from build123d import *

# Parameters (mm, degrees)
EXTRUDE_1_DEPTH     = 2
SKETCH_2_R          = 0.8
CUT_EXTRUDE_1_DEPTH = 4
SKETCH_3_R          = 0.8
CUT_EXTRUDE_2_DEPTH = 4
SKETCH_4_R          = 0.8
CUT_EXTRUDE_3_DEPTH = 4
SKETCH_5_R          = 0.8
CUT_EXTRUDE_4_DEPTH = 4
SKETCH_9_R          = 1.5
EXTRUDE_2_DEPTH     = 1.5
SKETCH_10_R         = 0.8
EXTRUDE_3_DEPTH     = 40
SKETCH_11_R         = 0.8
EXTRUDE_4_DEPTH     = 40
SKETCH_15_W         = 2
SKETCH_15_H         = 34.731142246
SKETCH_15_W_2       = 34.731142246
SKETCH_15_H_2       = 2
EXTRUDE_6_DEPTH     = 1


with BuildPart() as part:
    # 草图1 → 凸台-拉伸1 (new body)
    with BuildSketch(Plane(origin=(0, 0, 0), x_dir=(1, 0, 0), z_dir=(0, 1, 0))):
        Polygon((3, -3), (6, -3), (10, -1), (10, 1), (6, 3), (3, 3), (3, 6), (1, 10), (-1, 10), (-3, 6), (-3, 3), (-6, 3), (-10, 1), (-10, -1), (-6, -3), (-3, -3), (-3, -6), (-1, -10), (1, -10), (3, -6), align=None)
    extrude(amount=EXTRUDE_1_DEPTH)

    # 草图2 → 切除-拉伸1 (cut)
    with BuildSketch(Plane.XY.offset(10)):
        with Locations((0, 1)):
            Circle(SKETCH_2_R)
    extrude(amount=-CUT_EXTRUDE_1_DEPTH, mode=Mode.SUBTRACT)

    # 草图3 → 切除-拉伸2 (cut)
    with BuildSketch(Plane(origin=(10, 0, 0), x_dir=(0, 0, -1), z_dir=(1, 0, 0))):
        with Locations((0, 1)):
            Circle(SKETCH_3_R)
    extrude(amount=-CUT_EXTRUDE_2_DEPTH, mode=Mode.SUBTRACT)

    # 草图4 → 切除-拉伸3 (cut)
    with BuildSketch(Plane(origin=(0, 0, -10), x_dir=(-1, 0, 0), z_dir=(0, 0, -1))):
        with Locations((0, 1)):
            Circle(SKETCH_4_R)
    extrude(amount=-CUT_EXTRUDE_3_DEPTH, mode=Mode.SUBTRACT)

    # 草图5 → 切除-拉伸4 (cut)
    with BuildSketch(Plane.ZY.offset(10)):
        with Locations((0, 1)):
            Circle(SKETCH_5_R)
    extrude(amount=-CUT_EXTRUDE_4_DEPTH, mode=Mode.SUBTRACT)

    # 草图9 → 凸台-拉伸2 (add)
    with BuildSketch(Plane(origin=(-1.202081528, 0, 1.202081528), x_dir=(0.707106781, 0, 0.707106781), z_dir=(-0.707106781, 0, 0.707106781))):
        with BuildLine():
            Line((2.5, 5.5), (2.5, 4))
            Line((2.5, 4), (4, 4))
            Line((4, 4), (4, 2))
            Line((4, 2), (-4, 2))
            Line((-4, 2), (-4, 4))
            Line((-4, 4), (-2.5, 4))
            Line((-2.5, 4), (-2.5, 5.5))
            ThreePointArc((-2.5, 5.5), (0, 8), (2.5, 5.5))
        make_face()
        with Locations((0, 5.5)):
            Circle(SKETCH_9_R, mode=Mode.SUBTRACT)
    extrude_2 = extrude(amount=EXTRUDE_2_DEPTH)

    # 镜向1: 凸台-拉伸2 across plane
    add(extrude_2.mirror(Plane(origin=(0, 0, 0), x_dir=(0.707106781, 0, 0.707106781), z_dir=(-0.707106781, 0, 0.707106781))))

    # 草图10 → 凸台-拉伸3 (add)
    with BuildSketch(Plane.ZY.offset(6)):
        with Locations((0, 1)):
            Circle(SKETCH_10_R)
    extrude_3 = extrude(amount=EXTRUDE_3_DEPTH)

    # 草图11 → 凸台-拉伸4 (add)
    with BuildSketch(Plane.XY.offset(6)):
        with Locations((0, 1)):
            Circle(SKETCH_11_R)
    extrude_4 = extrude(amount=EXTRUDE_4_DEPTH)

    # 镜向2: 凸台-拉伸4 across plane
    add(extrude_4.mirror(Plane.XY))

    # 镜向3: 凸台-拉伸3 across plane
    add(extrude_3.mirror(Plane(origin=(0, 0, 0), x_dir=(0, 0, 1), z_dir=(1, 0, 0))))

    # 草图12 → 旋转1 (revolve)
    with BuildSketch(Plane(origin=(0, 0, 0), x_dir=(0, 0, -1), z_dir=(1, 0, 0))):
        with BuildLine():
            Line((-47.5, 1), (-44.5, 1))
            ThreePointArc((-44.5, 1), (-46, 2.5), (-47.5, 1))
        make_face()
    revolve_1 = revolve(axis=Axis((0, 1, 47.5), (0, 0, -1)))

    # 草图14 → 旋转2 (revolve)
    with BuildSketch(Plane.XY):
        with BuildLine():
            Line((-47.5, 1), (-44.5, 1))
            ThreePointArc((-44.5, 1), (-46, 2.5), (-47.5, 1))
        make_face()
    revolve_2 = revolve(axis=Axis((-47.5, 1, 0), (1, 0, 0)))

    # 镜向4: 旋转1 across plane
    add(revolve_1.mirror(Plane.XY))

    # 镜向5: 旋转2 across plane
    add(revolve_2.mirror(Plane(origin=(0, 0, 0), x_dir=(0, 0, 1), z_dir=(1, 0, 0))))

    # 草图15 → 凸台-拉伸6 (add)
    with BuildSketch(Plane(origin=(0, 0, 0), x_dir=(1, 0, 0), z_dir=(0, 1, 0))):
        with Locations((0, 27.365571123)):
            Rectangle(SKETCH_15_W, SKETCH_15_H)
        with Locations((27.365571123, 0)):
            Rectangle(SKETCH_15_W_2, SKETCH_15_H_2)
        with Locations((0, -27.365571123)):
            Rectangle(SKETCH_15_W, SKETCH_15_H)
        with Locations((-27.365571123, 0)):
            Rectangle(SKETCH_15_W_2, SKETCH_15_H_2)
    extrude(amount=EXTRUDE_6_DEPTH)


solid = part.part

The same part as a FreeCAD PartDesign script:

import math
import FreeCAD as App
import Part
import Sketcher

doc = App.newDocument("Part")
body = doc.addObject("PartDesign::Body", "Body")

# Sketch on XZ plane
sketch1 = doc.addObject("Sketcher::SketchObject", "Sketch")
body.addObject(sketch1)
sketch1.AttachmentSupport = (doc.XZ_Plane, [""])
sketch1.MapMode = "FlatFace"
sketch1.addGeometry([
    Part.LineSegment(App.Vector(3, 3, 0), App.Vector(6, 3, 0)),  # 0
    Part.LineSegment(App.Vector(6, 3, 0), App.Vector(10, 1, 0)),  # 1
    Part.LineSegment(App.Vector(10, 1, 0), App.Vector(10, -1, 0)),  # 2
    Part.LineSegment(App.Vector(10, -1, 0), App.Vector(6, -3, 0)),  # 3
    Part.LineSegment(App.Vector(6, -3, 0), App.Vector(3, -3, 0)),  # 4
    Part.LineSegment(App.Vector(3, -3, 0), App.Vector(3, -6, 0)),  # 5
    Part.LineSegment(App.Vector(3, -6, 0), App.Vector(1, -10, 0)),  # 6
    Part.LineSegment(App.Vector(1, -10, 0), App.Vector(-1, -10, 0)),  # 7
    Part.LineSegment(App.Vector(-1, -10, 0), App.Vector(-3, -6, 0)),  # 8
    Part.LineSegment(App.Vector(-3, -6, 0), App.Vector(-3, -3, 0)),  # 9
    Part.LineSegment(App.Vector(-3, -3, 0), App.Vector(-6, -3, 0)),  # 10
    Part.LineSegment(App.Vector(-6, -3, 0), App.Vector(-10, -1, 0)),  # 11
    Part.LineSegment(App.Vector(-10, -1, 0), App.Vector(-10, 1, 0)),  # 12
    Part.LineSegment(App.Vector(-10, 1, 0), App.Vector(-6, 3, 0)),  # 13
    Part.LineSegment(App.Vector(-6, 3, 0), App.Vector(-3, 3, 0)),  # 14
    Part.LineSegment(App.Vector(-3, 3, 0), App.Vector(-3, 6, 0)),  # 15
    Part.LineSegment(App.Vector(-3, 6, 0), App.Vector(-1, 10, 0)),  # 16
    Part.LineSegment(App.Vector(-1, 10, 0), App.Vector(1, 10, 0)),  # 17
    Part.LineSegment(App.Vector(1, 10, 0), App.Vector(3, 6, 0)),  # 18
    Part.LineSegment(App.Vector(3, 6, 0), App.Vector(3, 3, 0)),  # 19
], False)
sketch1.addConstraint([
    Sketcher.Constraint("Coincident", 0, 2, 1, 1),
    Sketcher.Constraint("Coincident", 1, 2, 2, 1),
    Sketcher.Constraint("Coincident", 2, 2, 3, 1),
    Sketcher.Constraint("Coincident", 3, 2, 4, 1),
    Sketcher.Constraint("Coincident", 4, 2, 5, 1),
    Sketcher.Constraint("Coincident", 5, 2, 6, 1),
    Sketcher.Constraint("Coincident", 6, 2, 7, 1),
    Sketcher.Constraint("Coincident", 7, 2, 8, 1),
    Sketcher.Constraint("Coincident", 8, 2, 9, 1),
    Sketcher.Constraint("Coincident", 9, 2, 10, 1),
    Sketcher.Constraint("Coincident", 10, 2, 11, 1),
    Sketcher.Constraint("Coincident", 11, 2, 12, 1),
    Sketcher.Constraint("Coincident", 12, 2, 13, 1),
    Sketcher.Constraint("Coincident", 13, 2, 14, 1),
    Sketcher.Constraint("Coincident", 14, 2, 15, 1),
    Sketcher.Constraint("Coincident", 15, 2, 16, 1),
    Sketcher.Constraint("Coincident", 16, 2, 17, 1),
    Sketcher.Constraint("Coincident", 17, 2, 18, 1),
    Sketcher.Constraint("Coincident", 18, 2, 19, 1),
    Sketcher.Constraint("Coincident", 19, 2, 0, 1),
    Sketcher.Constraint("Horizontal", 0),
    Sketcher.Constraint("Vertical", 2),
    Sketcher.Constraint("Horizontal", 4),
    Sketcher.Constraint("Vertical", 5),
    Sketcher.Constraint("Horizontal", 7),
    Sketcher.Constraint("Vertical", 9),
    Sketcher.Constraint("Horizontal", 10),
    Sketcher.Constraint("Vertical", 12),
    Sketcher.Constraint("Horizontal", 14),
    Sketcher.Constraint("Vertical", 15),
    Sketcher.Constraint("Horizontal", 17),
    Sketcher.Constraint("Vertical", 19),
    Sketcher.Constraint("Symmetric", 0, 2, 10, 2, -1, 1),
    Sketcher.Constraint("Symmetric", 1, 2, 11, 2, -1, 1),
    Sketcher.Constraint("Symmetric", 3, 2, 13, 2, -1, 1),
    Sketcher.Constraint("Symmetric", 5, 2, 15, 2, -1, 1),
    Sketcher.Constraint("Symmetric", 6, 2, 16, 2, -1, 1),
    Sketcher.Constraint("Symmetric", 8, 2, 18, 2, -1, 1),
    Sketcher.Constraint("Symmetric", 5, 2, 8, 2, -2),
    Sketcher.Constraint("Symmetric", 3, 2, 10, 2, -2),
    Sketcher.Constraint("Perpendicular", 1, 6),
    Sketcher.Constraint("Perpendicular", 3, 8),
    Sketcher.Constraint("Perpendicular", 8, 13),
    Sketcher.Constraint("Perpendicular", 13, 18),
    Sketcher.Constraint("Horizontal", 2, 2, 11, 2),
    Sketcher.Constraint("Equal", 17, 2),
    Sketcher.Constraint("Equal", 14, 5),
    Sketcher.Constraint("Equal", 3, 6),
    Sketcher.Constraint("DistanceX", 0, 1, 0, 2, 3.0),
    Sketcher.Constraint("DistanceX", 7, 2, 7, 1, 2.0),
    Sketcher.Constraint("DistanceX", -1, 1, 0, 2, 6.0),
    Sketcher.Constraint("DistanceX", -1, 1, 1, 2, 10.0),
])
pad1 = doc.addObject("PartDesign::Pad", "Pad")
body.addObject(pad1)
pad1.Profile = sketch1
pad1.Length = 2
pad1.Reversed = True

# Sketch on XY plane
sketch2 = doc.addObject("Sketcher::SketchObject", "Sketch001")
body.addObject(sketch2)
sketch2.AttachmentSupport = (doc.XY_Plane, [""])
sketch2.MapMode = "FlatFace"
sketch2.AttachmentOffset = App.Placement(App.Vector(0, 0, 10), App.Rotation())
sketch2.addGeometry(Part.Circle(App.Vector(0, 1, 0), App.Vector(0, 0, 1), 0.8), False)
sketch2.addConstraint([
    Sketcher.Constraint("PointOnObject", 0, 3, -2),
    Sketcher.Constraint("Diameter", 0, 1.6),
    Sketcher.Constraint("DistanceY", -1, 1, 0, 3, 1.0),
])
pocket1 = doc.addObject("PartDesign::Pocket", "Pocket")
body.addObject(pocket1)
pocket1.Profile = sketch2
pocket1.Length = 4

# Sketch on YZ plane
sketch3 = doc.addObject("Sketcher::SketchObject", "Sketch002")
body.addObject(sketch3)
sketch3.AttachmentSupport = (doc.YZ_Plane, [""])
sketch3.MapMode = "FlatFace"
sketch3.AttachmentOffset = App.Placement(App.Vector(0, 0, 10), App.Rotation())
sketch3.addGeometry(Part.Circle(App.Vector(1, 0, 0), App.Vector(0, 0, 1), 0.8), False)
sketch3.addConstraint([
    Sketcher.Constraint("PointOnObject", 0, 3, -1),
    Sketcher.Constraint("Diameter", 0, 1.6),
    Sketcher.Constraint("DistanceX", -1, 1, 0, 3, 1.0),
])
pocket2 = doc.addObject("PartDesign::Pocket", "Pocket001")
body.addObject(pocket2)
pocket2.Profile = sketch3
pocket2.Length = 4

# Sketch on XY plane
sketch4 = doc.addObject("Sketcher::SketchObject", "Sketch003")
body.addObject(sketch4)
sketch4.AttachmentSupport = (doc.XY_Plane, [""])
sketch4.MapMode = "FlatFace"
sketch4.AttachmentOffset = App.Placement(App.Vector(0, 0, -10), App.Rotation())
sketch4.addGeometry(Part.Circle(App.Vector(0, 1, 0), App.Vector(0, 0, 1), 0.8), False)
sketch4.addConstraint([
    Sketcher.Constraint("PointOnObject", 0, 3, -2),
    Sketcher.Constraint("Diameter", 0, 1.6),
    Sketcher.Constraint("DistanceY", -1, 1, 0, 3, 1.0),
])
pocket3 = doc.addObject("PartDesign::Pocket", "Pocket002")
body.addObject(pocket3)
pocket3.Profile = sketch4
pocket3.Length = 4
pocket3.Reversed = True

# Sketch on YZ plane
sketch5 = doc.addObject("Sketcher::SketchObject", "Sketch004")
body.addObject(sketch5)
sketch5.AttachmentSupport = (doc.YZ_Plane, [""])
sketch5.MapMode = "FlatFace"
sketch5.AttachmentOffset = App.Placement(App.Vector(0, 0, -10), App.Rotation())
sketch5.addGeometry(Part.Circle(App.Vector(1, 0, 0), App.Vector(0, 0, 1), 0.8), False)
sketch5.addConstraint([
    Sketcher.Constraint("PointOnObject", 0, 3, -1),
    Sketcher.Constraint("Diameter", 0, 1.6),
    Sketcher.Constraint("DistanceX", -1, 1, 0, 3, 1.0),
])
pocket4 = doc.addObject("PartDesign::Pocket", "Pocket003")
body.addObject(pocket4)
pocket4.Profile = sketch5
pocket4.Length = 4
pocket4.Reversed = True

# Sketch on an angled plane
sketch6 = doc.addObject("Sketcher::SketchObject", "Sketch005")
body.addObject(sketch6)
sketch6.Placement = App.Placement(App.Vector(-1.202082, 0, 1.202082), App.Rotation(App.Vector(0.707106781, 0, 0.707106781), App.Vector(0, 0.999999999, 0), App.Vector(-0.707106781, 0, 0.707106781), "ZXY"))
sketch6.addGeometry([
    Part.LineSegment(App.Vector(2.5, 4, 0), App.Vector(2.5, 5.5, 0)),  # 0
    Part.ArcOfCircle(Part.Circle(App.Vector(0, 5.5, 0), App.Vector(0, 0, 1), 2.5), math.radians(0), math.radians(180)),  # 1
    Part.LineSegment(App.Vector(-2.5, 5.5, 0), App.Vector(-2.5, 4, 0)),  # 2
    Part.LineSegment(App.Vector(-2.5, 4, 0), App.Vector(-4, 4, 0)),  # 3
    Part.LineSegment(App.Vector(-4, 4, 0), App.Vector(-4, 2, 0)),  # 4
    Part.LineSegment(App.Vector(-4, 2, 0), App.Vector(4, 2, 0)),  # 5
    Part.LineSegment(App.Vector(4, 2, 0), App.Vector(4, 4, 0)),  # 6
    Part.LineSegment(App.Vector(4, 4, 0), App.Vector(2.5, 4, 0)),  # 7
    Part.Circle(App.Vector(0, 5.5, 0), App.Vector(0, 0, 1), 1.5),  # 8
], False)
sketch6.addConstraint([
    Sketcher.Constraint("Tangent", 0, 2, 1, 1),
    Sketcher.Constraint("Tangent", 1, 2, 2, 1),
    Sketcher.Constraint("Coincident", 2, 2, 3, 1),
    Sketcher.Constraint("Coincident", 3, 2, 4, 1),
    Sketcher.Constraint("Coincident", 4, 2, 5, 1),
    Sketcher.Constraint("Coincident", 5, 2, 6, 1),
    Sketcher.Constraint("Coincident", 6, 2, 7, 1),
    Sketcher.Constraint("Coincident", 7, 2, 0, 1),
    Sketcher.Constraint("Vertical", 0),
    Sketcher.Constraint("Vertical", 2),
    Sketcher.Constraint("Horizontal", 3),
    Sketcher.Constraint("Vertical", 4),
    Sketcher.Constraint("Horizontal", 5),
    Sketcher.Constraint("Vertical", 6),
    Sketcher.Constraint("Horizontal", 7),
    Sketcher.Constraint("Coincident", 8, 3, 1, 3),
    Sketcher.Constraint("Symmetric", 3, 2, 6, 2, -2),
    Sketcher.Constraint("PointOnObject", 1, 3, -2),
    Sketcher.Constraint("Equal", 7, 0),
    Sketcher.Constraint("Diameter", 8, 3.0),
    Sketcher.Constraint("Radius", 1, 2.5),
    Sketcher.Constraint("DistanceX", 5, 1, 5, 2, 8.0),
    Sketcher.Constraint("DistanceY", 4, 2, 4, 1, 2.0),
    Sketcher.Constraint("DistanceY", -1, 1, 2, 2, 4.0),
])
pad2 = doc.addObject("PartDesign::Pad", "Pad001")
body.addObject(pad2)
pad2.Profile = sketch6
pad2.Length = 1.5
doc.recompute()

datumplane = doc.addObject("PartDesign::Plane", "DatumPlane")
body.addObject(datumplane)
datumplane.Placement = App.Placement(App.Vector(0, 0, 0), App.Rotation(App.Vector(-0.707106781, 0, -0.707106781), App.Vector(0, -1, 0), App.Vector(-0.707106781, 0, 0.707106781), "ZXY"))
mirrored = doc.addObject("PartDesign::Mirrored", "Mirrored")
body.addObject(mirrored)
mirrored.Originals = [pad2]
mirrored.MirrorPlane = (datumplane, [""])
body.Tip = mirrored

# Sketch on YZ plane
sketch7 = doc.addObject("Sketcher::SketchObject", "Sketch006")
body.addObject(sketch7)
sketch7.AttachmentSupport = (doc.YZ_Plane, [""])
sketch7.MapMode = "FlatFace"
sketch7.AttachmentOffset = App.Placement(App.Vector(0, 0, -6), App.Rotation())
sketch7.addGeometry(Part.Circle(App.Vector(1, 0, 0), App.Vector(0, 0, 1), 0.8), False)
sketch7.addConstraint([
    Sketcher.Constraint("PointOnObject", 0, 3, -1),
    Sketcher.Constraint("Diameter", 0, 1.6),
    Sketcher.Constraint("DistanceX", -1, 1, 0, 3, 1.0),
])
pad3 = doc.addObject("PartDesign::Pad", "Pad002")
body.addObject(pad3)
pad3.Profile = sketch7
pad3.Length = 40
pad3.Reversed = True

# Sketch on XY plane
sketch8 = doc.addObject("Sketcher::SketchObject", "Sketch007")
body.addObject(sketch8)
sketch8.AttachmentSupport = (doc.XY_Plane, [""])
sketch8.MapMode = "FlatFace"
sketch8.AttachmentOffset = App.Placement(App.Vector(0, 0, 6), App.Rotation())
sketch8.addGeometry(Part.Circle(App.Vector(0, 1, 0), App.Vector(0, 0, 1), 0.8), False)
sketch8.addConstraint([
    Sketcher.Constraint("PointOnObject", 0, 3, -2),
    Sketcher.Constraint("Diameter", 0, 1.6),
    Sketcher.Constraint("DistanceY", -1, 1, 0, 3, 1.0),
])
pad4 = doc.addObject("PartDesign::Pad", "Pad003")
body.addObject(pad4)
pad4.Profile = sketch8
pad4.Length = 40
doc.recompute()

mirrored2 = doc.addObject("PartDesign::Mirrored", "Mirrored001")
body.addObject(mirrored2)
mirrored2.Originals = [pad4]
mirrored2.MirrorPlane = (doc.XY_Plane, [""])
body.Tip = mirrored2
doc.recompute()

mirrored3 = doc.addObject("PartDesign::Mirrored", "Mirrored002")
body.addObject(mirrored3)
mirrored3.Originals = [pad3]
mirrored3.MirrorPlane = (doc.YZ_Plane, [""])
body.Tip = mirrored3

# Sketch on YZ plane
sketch9 = doc.addObject("Sketcher::SketchObject", "Sketch008")
body.addObject(sketch9)
sketch9.AttachmentSupport = (doc.YZ_Plane, [""])
sketch9.MapMode = "FlatFace"
sketch9.addGeometry([
    Part.LineSegment(App.Vector(1, 47.5, 0), App.Vector(1, 44.5, 0)),
    Part.ArcOfCircle(Part.Circle(App.Vector(1, 46, 0), App.Vector(0, 0, 1), 1.5), math.radians(-90), math.radians(90)),
], False)
sketch9.addGeometry(Part.LineSegment(App.Vector(1, 47.5, 0), App.Vector(1, 44.5, 0)), True)  # axis
sketch9.addConstraint([
    Sketcher.Constraint("Coincident", 0, 1, 1, 2),
    Sketcher.Constraint("Coincident", 1, 1, 0, 2),
    Sketcher.Constraint("Vertical", 0),
    Sketcher.Constraint("Vertical", 2),
    Sketcher.Constraint("Coincident", 2, 1, 0, 1),
    Sketcher.Constraint("Vertical", 1, 3, 0, 1),
    Sketcher.Constraint("Equal", 0, 2),
    Sketcher.Constraint("Radius", 1, 1.5),
    Sketcher.Constraint("DistanceX", -1, 1, 1, 3, 1.0),
    Sketcher.Constraint("DistanceY", -1, 1, 1, 3, 46.0),
])
revolution = doc.addObject("PartDesign::Revolution", "Revolution")
body.addObject(revolution)
revolution.Profile = sketch9
revolution.ReferenceAxis = (sketch9, ["Axis0"])
revolution.Angle = 360

# Sketch on XY plane
sketch10 = doc.addObject("Sketcher::SketchObject", "Sketch009")
body.addObject(sketch10)
sketch10.AttachmentSupport = (doc.XY_Plane, [""])
sketch10.MapMode = "FlatFace"
sketch10.addGeometry([
    Part.LineSegment(App.Vector(-47.5, 1, 0), App.Vector(-44.5, 1, 0)),
    Part.ArcOfCircle(Part.Circle(App.Vector(-46, 1, 0), App.Vector(0, 0, 1), 1.5), math.radians(0), math.radians(180)),
], False)
sketch10.addGeometry(Part.LineSegment(App.Vector(-47.5, 1, 0), App.Vector(-44.5, 1, 0)), True)  # axis
sketch10.addConstraint([
    Sketcher.Constraint("Coincident", 0, 1, 1, 2),
    Sketcher.Constraint("Coincident", 1, 1, 0, 2),
    Sketcher.Constraint("Horizontal", 0),
    Sketcher.Constraint("Horizontal", 2),
    Sketcher.Constraint("Coincident", 2, 1, 0, 1),
    Sketcher.Constraint("Horizontal", 1, 3, 0, 1),
    Sketcher.Constraint("Equal", 0, 2),
    Sketcher.Constraint("Radius", 1, 1.5),
    Sketcher.Constraint("DistanceX", 1, 3, -1, 1, 46.0),
    Sketcher.Constraint("DistanceY", -1, 1, 1, 3, 1.0),
])
revolution2 = doc.addObject("PartDesign::Revolution", "Revolution001")
body.addObject(revolution2)
revolution2.Profile = sketch10
revolution2.ReferenceAxis = (sketch10, ["Axis0"])
revolution2.Angle = 360
doc.recompute()

mirrored4 = doc.addObject("PartDesign::Mirrored", "Mirrored003")
body.addObject(mirrored4)
mirrored4.Originals = [revolution]
mirrored4.MirrorPlane = (doc.XY_Plane, [""])
body.Tip = mirrored4
doc.recompute()

mirrored5 = doc.addObject("PartDesign::Mirrored", "Mirrored004")
body.addObject(mirrored5)
mirrored5.Originals = [revolution2]
mirrored5.MirrorPlane = (doc.YZ_Plane, [""])
body.Tip = mirrored5

# Sketch on XZ plane
sketch11 = doc.addObject("Sketcher::SketchObject", "Sketch010")
body.addObject(sketch11)
sketch11.AttachmentSupport = (doc.XZ_Plane, [""])
sketch11.MapMode = "FlatFace"
sketch11.addGeometry([
    Part.LineSegment(App.Vector(-1, -44.7, 0), App.Vector(-1, -10, 0)),  # 0
    Part.LineSegment(App.Vector(-1, -10, 0), App.Vector(1, -10, 0)),  # 1
    Part.LineSegment(App.Vector(1, -10, 0), App.Vector(1, -44.7, 0)),  # 2
    Part.LineSegment(App.Vector(1, -44.7, 0), App.Vector(-1, -44.7, 0)),  # 3
    Part.LineSegment(App.Vector(10, -1, 0), App.Vector(10, 1, 0)),  # 4
    Part.LineSegment(App.Vector(10, 1, 0), App.Vector(44.7, 1, 0)),  # 5
    Part.LineSegment(App.Vector(44.7, 1, 0), App.Vector(44.7, -1, 0)),  # 6
    Part.LineSegment(App.Vector(44.7, -1, 0), App.Vector(10, -1, 0)),  # 7
    Part.LineSegment(App.Vector(-1, 10, 0), App.Vector(-1, 44.7, 0)),  # 8
    Part.LineSegment(App.Vector(-1, 44.7, 0), App.Vector(1, 44.7, 0)),  # 9
    Part.LineSegment(App.Vector(1, 44.7, 0), App.Vector(1, 10, 0)),  # 10
    Part.LineSegment(App.Vector(1, 10, 0), App.Vector(-1, 10, 0)),  # 11
    Part.LineSegment(App.Vector(-44.7, -1, 0), App.Vector(-44.7, 1, 0)),  # 12
    Part.LineSegment(App.Vector(-44.7, 1, 0), App.Vector(-10, 1, 0)),  # 13
    Part.LineSegment(App.Vector(-10, 1, 0), App.Vector(-10, -1, 0)),  # 14
    Part.LineSegment(App.Vector(-10, -1, 0), App.Vector(-44.7, -1, 0)),  # 15
], False)
sketch11.addConstraint([
    Sketcher.Constraint("Coincident", 0, 2, 1, 1),
    Sketcher.Constraint("Coincident", 1, 2, 2, 1),
    Sketcher.Constraint("Coincident", 2, 2, 3, 1),
    Sketcher.Constraint("Coincident", 3, 2, 0, 1),
    Sketcher.Constraint("Coincident", 4, 2, 5, 1),
    Sketcher.Constraint("Coincident", 5, 2, 6, 1),
    Sketcher.Constraint("Coincident", 6, 2, 7, 1),
    Sketcher.Constraint("Coincident", 7, 2, 4, 1),
    Sketcher.Constraint("Coincident", 8, 2, 9, 1),
    Sketcher.Constraint("Coincident", 9, 2, 10, 1),
    Sketcher.Constraint("Coincident", 10, 2, 11, 1),
    Sketcher.Constraint("Coincident", 11, 2, 8, 1),
    Sketcher.Constraint("Coincident", 12, 2, 13, 1),
    Sketcher.Constraint("Coincident", 13, 2, 14, 1),
    Sketcher.Constraint("Coincident", 14, 2, 15, 1),
    Sketcher.Constraint("Coincident", 15, 2, 12, 1),
    Sketcher.Constraint("Vertical", 0),
    Sketcher.Constraint("Horizontal", 1),
    Sketcher.Constraint("Vertical", 2),
    Sketcher.Constraint("Horizontal", 3),
    Sketcher.Constraint("Vertical", 4),
    Sketcher.Constraint("Horizontal", 5),
    Sketcher.Constraint("Vertical", 6),
    Sketcher.Constraint("Horizontal", 7),
    Sketcher.Constraint("Vertical", 8),
    Sketcher.Constraint("Horizontal", 9),
    Sketcher.Constraint("Vertical", 10),
    Sketcher.Constraint("Horizontal", 11),
    Sketcher.Constraint("Vertical", 12),
    Sketcher.Constraint("Horizontal", 13),
    Sketcher.Constraint("Vertical", 14),
    Sketcher.Constraint("Horizontal", 15),
    Sketcher.Constraint("Symmetric", 2, 2, 8, 2, -1, 1),
    Sketcher.Constraint("Symmetric", 0, 2, 10, 2, -1, 1),
    Sketcher.Constraint("Symmetric", 6, 2, 12, 2, -1, 1),
    Sketcher.Constraint("Symmetric", 4, 2, 14, 2, -1, 1),
    Sketcher.Constraint("Horizontal", 5, 2, 12, 2),
    Sketcher.Constraint("Vertical", 3, 2, 8, 2),
    Sketcher.Constraint("Equal", 15, 0),
    Sketcher.Constraint("Equal", 11, 4),
    Sketcher.Constraint("DistanceX", 1, 1, 1, 2, 2.0),
    Sketcher.Constraint("DistanceY", 0, 2, -1, 1, 10.0),
    Sketcher.Constraint("DistanceX", -1, 1, 4, 2, 10.0),
    Sketcher.Constraint("DistanceX", 5, 1, 5, 2, 34.731142),
])
pad5 = doc.addObject("PartDesign::Pad", "Pad004")
body.addObject(pad5)
pad5.Profile = sketch11
pad5.Length = 1
pad5.Reversed = True

doc.recompute()
